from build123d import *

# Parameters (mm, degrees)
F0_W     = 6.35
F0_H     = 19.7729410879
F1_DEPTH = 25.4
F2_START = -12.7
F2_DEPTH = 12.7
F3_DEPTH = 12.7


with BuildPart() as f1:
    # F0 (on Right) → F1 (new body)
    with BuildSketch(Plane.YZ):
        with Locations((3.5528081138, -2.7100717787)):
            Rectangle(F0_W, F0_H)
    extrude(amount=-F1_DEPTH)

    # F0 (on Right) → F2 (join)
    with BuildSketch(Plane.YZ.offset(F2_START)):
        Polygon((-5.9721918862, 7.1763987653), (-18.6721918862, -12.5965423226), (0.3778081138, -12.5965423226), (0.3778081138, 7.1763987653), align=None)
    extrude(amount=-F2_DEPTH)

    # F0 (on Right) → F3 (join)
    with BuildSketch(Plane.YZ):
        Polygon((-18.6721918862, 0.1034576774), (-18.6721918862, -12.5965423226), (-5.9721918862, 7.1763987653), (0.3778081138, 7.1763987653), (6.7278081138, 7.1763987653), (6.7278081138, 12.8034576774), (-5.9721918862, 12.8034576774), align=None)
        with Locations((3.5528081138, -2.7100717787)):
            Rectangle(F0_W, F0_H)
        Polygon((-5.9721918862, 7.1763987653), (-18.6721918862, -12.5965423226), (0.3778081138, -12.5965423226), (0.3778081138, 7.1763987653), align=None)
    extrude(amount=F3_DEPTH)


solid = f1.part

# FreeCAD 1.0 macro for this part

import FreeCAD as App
import Part
import Sketcher
from FreeCAD import Vector
Q = App.Units.Quantity


def add_polygon(sketch, points):
    """Adds a closed chain of lines whose ends are joined by coincident constraints."""
    first, n = sketch.GeometryCount, len(points)
    for a, b in zip(points, points[1:] + points[:1]):
        sketch.addGeometry(Part.LineSegment(App.Vector(*a, 0), App.Vector(*b, 0)), False)
    for i in range(n):
        sketch.addConstraint(Sketcher.Constraint("Coincident", first + i, 2, first + (i + 1) % n, 1))

doc = App.newDocument("Part")
body = doc.addObject("PartDesign::Body", "Body")

# Sketch on YZ plane
sketch1 = body.newObject("Sketcher::SketchObject", "Sketch")
sketch1.AttachmentSupport = (doc.getObject("YZ_Plane"), [""])
sketch1.MapMode = "FlatFace"
add_polygon(sketch1, [(0, 7), (0, -13), (7, -13), (7, 7)])  # lines 0-3
sketch1.addConstraint([
    Sketcher.Constraint("Vertical", 0),
    Sketcher.Constraint("Horizontal", 1),
    Sketcher.Constraint("Vertical", 2),
    Sketcher.Constraint("Horizontal", 3),
    Sketcher.Constraint("DistanceX", 1, 1, 1, 2, Q("0.25 in")),
    Sketcher.Constraint("DistanceY", 0, 2, 0, 1, Q("19.772941 mm")),
    Sketcher.Constraint("DistanceY", -1, 1, 2, 2, Q("7.176399 mm")),
    Sketcher.Constraint("DistanceX", -1, 1, 0, 2, Q("0.377808 mm")),
])
pad1 = body.newObject("PartDesign::Pad", "Pad")
pad1.Profile = sketch1
pad1.Length = Q("1 in")
pad1.Reversed = True

# Sketch on YZ plane
sketch2 = body.newObject("Sketcher::SketchObject", "Sketch001")
sketch2.AttachmentSupport = (doc.getObject("YZ_Plane"), [""])
sketch2.MapMode = "FlatFace"
sketch2.AttachmentOffset = App.Placement(Vector(0, 0, -0.5 * 25.4), App.Rotation())
add_polygon(sketch2, [(-6, 7), (-19, -13), (0, -13), (0, 7)])  # lines 0-3
sketch2.addConstraint([
    Sketcher.Constraint("Horizontal", 1),
    Sketcher.Constraint("Vertical", 2),
    Sketcher.Constraint("Horizontal", 3),
    Sketcher.Constraint("DistanceX", 1, 1, 1, 2, Q("0.75 in")),
    Sketcher.Constraint("DistanceX", 3, 2, 3, 1, Q("0.25 in")),
    Sketcher.Constraint("DistanceY", 2, 1, 2, 2, Q("19.772941 mm")),
    Sketcher.Constraint("DistanceY", -1, 1, 2, 2, Q("7.176399 mm")),
    Sketcher.Constraint("DistanceX", 0, 2, -1, 1, Q("18.672192 mm")),
])
pad2 = body.newObject("PartDesign::Pad", "Pad001")
pad2.Profile = sketch2
pad2.Length = Q("0.5 in")
pad2.Reversed = True

# Sketch on YZ plane
sketch3 = body.newObject("Sketcher::SketchObject", "Sketch002")
sketch3.AttachmentSupport = (doc.getObject("YZ_Plane"), [""])
sketch3.MapMode = "FlatFace"
add_polygon(sketch3, [(-19, 0), (-19, -13), (0, -13), (7, -13), (7, 13), (-6, 13)])  # lines 0-5
sketch3.addConstraint([
    Sketcher.Constraint("Vertical", 0),
    Sketcher.Constraint("Horizontal", 1),
    Sketcher.Constraint("Horizontal", 2),
    Sketcher.Constraint("Vertical", 3),
    Sketcher.Constraint("Horizontal", 4),
    Sketcher.Constraint("Equal", 4, 0),
    Sketcher.Constraint("DistanceY", 3, 1, 3, 2, Q("1 in")),
    Sketcher.Constraint("DistanceX", 4, 2, 4, 1, Q("0.5 in")),
    Sketcher.Constraint("Angle", 5, Q("-135 deg")),
    Sketcher.Constraint("DistanceX", 1, 1, 1, 2, Q("0.75 in")),
    Sketcher.Constraint("DistanceX", 0, 2, -1, 1, Q("18.672192 mm")),
    Sketcher.Constraint("DistanceY", 0, 2, -1, 1, Q("12.596542 mm")),
])
pad3 = body.newObject("PartDesign::Pad", "Pad002")
pad3.Profile = sketch3
pad3.Length = Q("0.5 in")

doc.recompute()
